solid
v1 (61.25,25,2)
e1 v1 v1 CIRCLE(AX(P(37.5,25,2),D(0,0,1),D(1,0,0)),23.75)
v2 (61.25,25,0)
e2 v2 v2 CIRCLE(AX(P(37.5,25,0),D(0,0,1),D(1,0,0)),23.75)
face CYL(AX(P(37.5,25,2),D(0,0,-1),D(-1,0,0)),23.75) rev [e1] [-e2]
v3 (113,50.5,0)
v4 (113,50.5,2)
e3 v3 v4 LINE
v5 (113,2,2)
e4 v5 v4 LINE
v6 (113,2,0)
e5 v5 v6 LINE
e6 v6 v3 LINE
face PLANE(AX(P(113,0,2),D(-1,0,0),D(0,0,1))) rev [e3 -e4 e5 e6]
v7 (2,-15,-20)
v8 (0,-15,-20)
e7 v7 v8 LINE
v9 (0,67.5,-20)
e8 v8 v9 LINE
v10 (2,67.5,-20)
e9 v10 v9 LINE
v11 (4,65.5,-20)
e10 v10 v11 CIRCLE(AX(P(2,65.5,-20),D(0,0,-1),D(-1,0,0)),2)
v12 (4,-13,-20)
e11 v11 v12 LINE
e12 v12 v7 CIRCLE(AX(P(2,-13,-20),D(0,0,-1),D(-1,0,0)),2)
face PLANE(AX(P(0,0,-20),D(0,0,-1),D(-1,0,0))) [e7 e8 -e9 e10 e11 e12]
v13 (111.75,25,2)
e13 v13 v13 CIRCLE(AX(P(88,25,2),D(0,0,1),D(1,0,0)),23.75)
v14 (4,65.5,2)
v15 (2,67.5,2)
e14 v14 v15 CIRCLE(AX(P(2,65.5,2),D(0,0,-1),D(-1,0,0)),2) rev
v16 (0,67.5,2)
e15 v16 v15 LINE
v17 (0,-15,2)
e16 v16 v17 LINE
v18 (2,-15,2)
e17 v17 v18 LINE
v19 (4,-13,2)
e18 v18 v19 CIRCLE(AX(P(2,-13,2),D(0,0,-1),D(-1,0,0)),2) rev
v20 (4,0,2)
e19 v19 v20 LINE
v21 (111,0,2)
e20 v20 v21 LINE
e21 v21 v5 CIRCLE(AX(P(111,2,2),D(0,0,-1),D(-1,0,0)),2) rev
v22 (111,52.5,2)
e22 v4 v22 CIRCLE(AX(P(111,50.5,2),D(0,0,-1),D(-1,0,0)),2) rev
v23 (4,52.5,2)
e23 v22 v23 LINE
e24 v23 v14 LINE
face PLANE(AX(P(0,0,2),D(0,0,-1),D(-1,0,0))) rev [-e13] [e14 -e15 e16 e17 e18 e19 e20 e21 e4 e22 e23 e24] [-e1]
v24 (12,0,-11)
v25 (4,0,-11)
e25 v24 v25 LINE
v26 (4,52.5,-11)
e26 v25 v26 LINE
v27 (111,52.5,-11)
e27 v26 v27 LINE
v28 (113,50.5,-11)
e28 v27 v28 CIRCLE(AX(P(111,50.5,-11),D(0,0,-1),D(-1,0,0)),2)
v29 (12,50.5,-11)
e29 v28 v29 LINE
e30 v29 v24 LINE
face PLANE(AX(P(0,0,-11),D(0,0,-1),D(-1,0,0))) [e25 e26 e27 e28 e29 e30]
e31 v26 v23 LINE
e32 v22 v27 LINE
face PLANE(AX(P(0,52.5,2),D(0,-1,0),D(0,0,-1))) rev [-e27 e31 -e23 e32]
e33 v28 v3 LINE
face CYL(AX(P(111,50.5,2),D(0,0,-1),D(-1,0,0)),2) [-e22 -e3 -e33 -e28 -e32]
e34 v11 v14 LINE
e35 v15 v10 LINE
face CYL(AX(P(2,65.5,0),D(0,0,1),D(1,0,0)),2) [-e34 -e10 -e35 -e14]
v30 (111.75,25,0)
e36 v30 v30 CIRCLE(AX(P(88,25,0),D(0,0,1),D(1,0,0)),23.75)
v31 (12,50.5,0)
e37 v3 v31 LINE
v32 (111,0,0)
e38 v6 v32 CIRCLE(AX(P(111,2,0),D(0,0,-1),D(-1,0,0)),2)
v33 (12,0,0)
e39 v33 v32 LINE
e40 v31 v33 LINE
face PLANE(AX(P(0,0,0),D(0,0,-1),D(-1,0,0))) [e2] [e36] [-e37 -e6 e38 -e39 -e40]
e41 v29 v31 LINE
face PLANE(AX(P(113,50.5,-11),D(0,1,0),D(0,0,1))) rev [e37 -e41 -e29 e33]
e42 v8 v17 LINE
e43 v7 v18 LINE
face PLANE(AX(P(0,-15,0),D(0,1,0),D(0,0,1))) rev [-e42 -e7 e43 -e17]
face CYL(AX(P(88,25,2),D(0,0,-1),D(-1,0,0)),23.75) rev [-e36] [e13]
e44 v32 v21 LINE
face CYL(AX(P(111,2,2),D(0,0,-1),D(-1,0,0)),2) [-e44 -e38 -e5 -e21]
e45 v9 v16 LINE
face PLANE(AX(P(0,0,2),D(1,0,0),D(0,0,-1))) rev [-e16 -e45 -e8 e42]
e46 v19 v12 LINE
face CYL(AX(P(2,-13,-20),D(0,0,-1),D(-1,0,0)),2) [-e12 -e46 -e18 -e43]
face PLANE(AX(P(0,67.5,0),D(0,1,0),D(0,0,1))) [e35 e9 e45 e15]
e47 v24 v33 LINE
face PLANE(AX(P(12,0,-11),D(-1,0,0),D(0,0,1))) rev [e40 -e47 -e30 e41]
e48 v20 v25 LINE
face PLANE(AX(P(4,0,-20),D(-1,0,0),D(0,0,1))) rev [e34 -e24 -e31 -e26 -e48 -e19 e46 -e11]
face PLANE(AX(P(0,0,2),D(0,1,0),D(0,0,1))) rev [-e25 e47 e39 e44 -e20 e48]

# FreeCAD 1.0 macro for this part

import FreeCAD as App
import Part
import Sketcher
from FreeCAD import Vector
Q = App.Units.Quantity


def edges_at(feature, points):
    """Names of the edges that pass closest to the given points."""
    edges = feature.Shape.Edges
    near = lambda p: min(range(len(edges)), key=lambda i: edges[i].distToShape(Part.Vertex(*p))[0])
    return sorted({f"Edge{near(p) + 1}" for p in points})

doc = App.newDocument("Part")
body = doc.addObject("PartDesign::Body", "Body")

# Sketch on XY plane
sketch1 = doc.addObject("Sketcher::SketchObject", "Sketch")
body.addObject(sketch1)
sketch1.AttachmentSupport = (doc.XY_Plane, [""])
sketch1.MapMode = "FlatFace"
sketch1.addGeometry(Part.LineSegment(Vector(0, 52, 0), Vector(0, 0, 0)), False)
sketch1.addGeometry(Part.LineSegment(Vector(0, 0, 0), Vector(113, 0, 0)), False)
sketch1.addGeometry(Part.LineSegment(Vector(113, 0, 0), Vector(113, 52, 0)), False)
sketch1.addGeometry(Part.LineSegment(Vector(113, 52, 0), Vector(0, 52, 0)), False)
sketch1.addGeometry(Part.Circle(Vector(38, 25, 0), Vector(0, 0, 1), 24), False)
sketch1.addGeometry(Part.Circle(Vector(88, 25, 0), Vector(0, 0, 1), 24), False)
sketch1.addConstraint(Sketcher.Constraint("Coincident", 0, 2, 1, 1))
sketch1.addConstraint(Sketcher.Constraint("Coincident", 1, 2, 2, 1))
sketch1.addConstraint(Sketcher.Constraint("Coincident", 2, 2, 3, 1))
sketch1.addConstraint(Sketcher.Constraint("Coincident", 3, 2, 0, 1))
sketch1.addConstraint(Sketcher.Constraint("Vertical", 0))
sketch1.addConstraint(Sketcher.Constraint("Horizontal", 1))
sketch1.addConstraint(Sketcher.Constraint("Vertical", 2))
sketch1.addConstraint(Sketcher.Constraint("Horizontal", 3))
sketch1.addConstraint(Sketcher.Constraint("Coincident", 0, 2, -1, 1))
sketch1.addConstraint(Sketcher.Constraint("Equal", 4, 5))
sketch1.addConstraint(Sketcher.Constraint("Horizontal", 4, 3, 5, 3))
sketch1.addConstraint(Sketcher.Constraint("Diameter", 4, Q("47.5 mm")))
sketch1.addConstraint(Sketcher.Constraint("DistanceX", 1, 1, 1, 2, Q("113 mm")))
sketch1.addConstraint(Sketcher.Constraint("DistanceY", 0, 2, 0, 1, Q("52.5 mm")))
sketch1.addConstraint(Sketcher.Constraint("DistanceY", -1, 1, 4, 3, Q("25 mm")))
sketch1.addConstraint(Sketcher.Constraint("DistanceX", -1, 1, 5, 3, Q("88 mm")))
sketch1.addConstraint(Sketcher.Constraint("DistanceX", -1, 1, 4, 3, Q("37.5 mm")))
pad1 = doc.addObject("PartDesign::Pad", "Pad")
body.addObject(pad1)
pad1.Profile = sketch1
pad1.Length = 2

# Sketch on XY plane
sketch2 = doc.addObject("Sketcher::SketchObject", "Sketch001")
body.addObject(sketch2)
sketch2.AttachmentSupport = (doc.XY_Plane, [""])
sketch2.MapMode = "FlatFace"
sketch2.addGeometry(Part.LineSegment(Vector(113, 52.5, 0), Vector(113, 50.5, 0)), False)
sketch2.addGeometry(Part.LineSegment(Vector(113, 50.5, 0), Vector(0, 50.5, 0)), False)
sketch2.addGeometry(Part.LineSegment(Vector(0, 50.5, 0), Vector(0, 52.5, 0)), False)
sketch2.addGeometry(Part.LineSegment(Vector(0, 52.5, 0), Vector(113, 52.5, 0)), False)
sketch2.addConstraint(Sketcher.Constraint("Coincident", 0, 2, 1, 1))
sketch2.addConstraint(Sketcher.Constraint("Coincident", 1, 2, 2, 1))
sketch2.addConstraint(Sketcher.Constraint("Coincident", 2, 2, 3, 1))
sketch2.addConstraint(Sketcher.Constraint("Coincident", 3, 2, 0, 1))
sketch2.addConstraint(Sketcher.Constraint("Vertical", 0))
sketch2.addConstraint(Sketcher.Constraint("Horizontal", 1))
sketch2.addConstraint(Sketcher.Constraint("Vertical", 2))
sketch2.addConstraint(Sketcher.Constraint("Horizontal", 3))
sketch2.addConstraint(Sketcher.Constraint("PointOnObject", 1, 2, -2))
sketch2.addConstraint(Sketcher.Constraint("DistanceX", 1, 2, 1, 1, Q("113 mm")))
sketch2.addConstraint(Sketcher.Constraint("DistanceY", 0, 2, 0, 1, Q("2 mm")))
sketch2.addConstraint(Sketcher.Constraint("DistanceY", -1, 1, 0, 2, Q("50.5 mm")))
pad2 = doc.addObject("PartDesign::Pad", "Pad001")
body.addObject(pad2)
pad2.Profile = sketch2
pad2.Length = 11
pad2.Reversed = True
doc.recompute()

fillet = doc.addObject("PartDesign::Fillet", "Fillet")
body.addObject(fillet)
fillet.Base = (pad2, edges_at(pad2, [(113, 0, 1), (113, 52.5, -4.5)]))
fillet.Radius = 2

# Sketch on XY plane
sketch3 = doc.addObject("Sketcher::SketchObject", "Sketch002")
body.addObject(sketch3)
sketch3.AttachmentSupport = (doc.XY_Plane, [""])
sketch3.MapMode = "FlatFace"
sketch3.addGeometry(Part.LineSegment(Vector(4, 52.5, 0), Vector(4, 0, 0)), False)
sketch3.addGeometry(Part.LineSegment(Vector(4, 0, 0), Vector(0, 0, 0)), False)
sketch3.addGeometry(Part.LineSegment(Vector(0, 0, 0), Vector(0, 52.5, 0)), False)
sketch3.addGeometry(Part.LineSegment(Vector(0, 52.5, 0), Vector(4, 52.5, 0)), False)
sketch3.addConstraint(Sketcher.Constraint("Coincident", 0, 2, 1, 1))
sketch3.addConstraint(Sketcher.Constraint("Coincident", 1, 2, 2, 1))
sketch3.addConstraint(Sketcher.Constraint("Coincident", 2, 2, 3, 1))
sketch3.addConstraint(Sketcher.Constraint("Coincident", 3, 2, 0, 1))
sketch3.addConstraint(Sketcher.Constraint("Vertical", 0))
sketch3.addConstraint(Sketcher.Constraint("Horizontal", 1))
sketch3.addConstraint(Sketcher.Constraint("Vertical", 2))
sketch3.addConstraint(Sketcher.Constraint("Horizontal", 3))
sketch3.addConstraint(Sketcher.Constraint("Coincident", 1, 2, -1, 1))
sketch3.addConstraint(Sketcher.Constraint("DistanceX", 1, 2, 1, 1, Q("4 mm")))
sketch3.addConstraint(Sketcher.Constraint("DistanceY", 0, 2, 0, 1, Q("52.5 mm")))
pad3 = doc.addObject("PartDesign::Pad", "Pad002")
body.addObject(pad3)
pad3.Profile = sketch3
pad3.Length = 20
pad3.Reversed = True

# Sketch on XY plane
sketch4 = doc.addObject("Sketcher::SketchObject", "Sketch003")
body.addObject(sketch4)
sketch4.AttachmentSupport = (doc.XY_Plane, [""])
sketch4.MapMode = "FlatFace"
sketch4.addGeometry(Part.LineSegment(Vector(4, 0, 0), Vector(4, 50, 0)), False)
sketch4.addGeometry(Part.LineSegment(Vector(4, 50, 0), Vector(12, 50, 0)), False)
sketch4.addGeometry(Part.LineSegment(Vector(12, 50, 0), Vector(12, 0, 0)), False)
sketch4.addGeometry(Part.LineSegment(Vector(12, 0, 0), Vector(4, 0, 0)), False)
sketch4.addConstraint(Sketcher.Constraint("Coincident", 0, 2, 1, 1))
sketch4.addConstraint(Sketcher.Constraint("Coincident", 1, 2, 2, 1))
sketch4.addConstraint(Sketcher.Constraint("Coincident", 2, 2, 3, 1))
sketch4.addConstraint(Sketcher.Constraint("Coincident", 3, 2, 0, 1))
sketch4.addConstraint(Sketcher.Constraint("Vertical", 0))
sketch4.addConstraint(Sketcher.Constraint("Horizontal", 1))
sketch4.addConstraint(Sketcher.Constraint("Vertical", 2))
sketch4.addConstraint(Sketcher.Constraint("Horizontal", 3))
sketch4.addConstraint(Sketcher.Constraint("PointOnObject", 2, 2, -1))
sketch4.addConstraint(Sketcher.Constraint("DistanceX", 1, 1, 1, 2, Q("8 mm")))
sketch4.addConstraint(Sketcher.Constraint("DistanceY", 0, 1, 0, 2, Q("50.5 mm")))
sketch4.addConstraint(Sketcher.Constraint("DistanceX", -1, 1, 0, 2, Q("4 mm")))
pad4 = doc.addObject("PartDesign::Pad", "Pad003")
body.addObject(pad4)
pad4.Profile = sketch4
pad4.Length = 11
pad4.Reversed = True

# Sketch on XZ plane
sketch5 = doc.addObject("Sketcher::SketchObject", "Sketch004")
body.addObject(sketch5)
sketch5.AttachmentSupport = (doc.XZ_Plane, [""])
sketch5.MapMode = "FlatFace"
sketch5.AttachmentOffset = App.Placement(Vector(0, 0, -52.5), App.Rotation())
sketch5.addGeometry(Part.LineSegment(Vector(0, -20, 0), Vector(0, 2, 0)), False)
sketch5.addGeometry(Part.LineSegment(Vector(0, 2, 0), Vector(4, 2, 0)), False)
sketch5.addGeometry(Part.LineSegment(Vector(4, 2, 0), Vector(4, -20, 0)), False)
sketch5.addGeometry(Part.LineSegment(Vector(4, -20, 0), Vector(0, -20, 0)), False)
sketch5.addConstraint(Sketcher.Constraint("Coincident", 0, 2, 1, 1))
sketch5.addConstraint(Sketcher.Constraint("Coincident", 1, 2, 2, 1))
sketch5.addConstraint(Sketcher.Constraint("Coincident", 2, 2, 3, 1))
sketch5.addConstraint(Sketcher.Constraint("Coincident", 3, 2, 0, 1))
sketch5.addConstraint(Sketcher.Constraint("Vertical", 0))
sketch5.addConstraint(Sketcher.Constraint("Horizontal", 1))
sketch5.addConstraint(Sketcher.Constraint("Vertical", 2))
sketch5.addConstraint(Sketcher.Constraint("Horizontal", 3))
sketch5.addConstraint(Sketcher.Constraint("PointOnObject", 0, 2, -2))
sketch5.addConstraint(Sketcher.Constraint("DistanceX", 1, 1, 1, 2, Q("4 mm")))
sketch5.addConstraint(Sketcher.Constraint("DistanceY", 0, 1, 0, 2, Q("22 mm")))
sketch5.addConstraint(Sketcher.Constraint("DistanceY", -1, 1, 0, 2, Q("2 mm")))
pad5 = doc.addObject("PartDesign::Pad", "Pad004")
body.addObject(pad5)
pad5.Profile = sketch5
pad5.Type = "TwoLengths"
pad5.Length = 15
pad5.Length2 = 67.5
pad5.Reversed = True
doc.recompute()

fillet2 = doc.addObject("PartDesign::Fillet", "Fillet001")
body.addObject(fillet2)
fillet2.Base = (pad5, edges_at(pad5, [(4, -15, -9), (4, 67.5, -9)]))
fillet2.Radius = 2

doc.recompute()
